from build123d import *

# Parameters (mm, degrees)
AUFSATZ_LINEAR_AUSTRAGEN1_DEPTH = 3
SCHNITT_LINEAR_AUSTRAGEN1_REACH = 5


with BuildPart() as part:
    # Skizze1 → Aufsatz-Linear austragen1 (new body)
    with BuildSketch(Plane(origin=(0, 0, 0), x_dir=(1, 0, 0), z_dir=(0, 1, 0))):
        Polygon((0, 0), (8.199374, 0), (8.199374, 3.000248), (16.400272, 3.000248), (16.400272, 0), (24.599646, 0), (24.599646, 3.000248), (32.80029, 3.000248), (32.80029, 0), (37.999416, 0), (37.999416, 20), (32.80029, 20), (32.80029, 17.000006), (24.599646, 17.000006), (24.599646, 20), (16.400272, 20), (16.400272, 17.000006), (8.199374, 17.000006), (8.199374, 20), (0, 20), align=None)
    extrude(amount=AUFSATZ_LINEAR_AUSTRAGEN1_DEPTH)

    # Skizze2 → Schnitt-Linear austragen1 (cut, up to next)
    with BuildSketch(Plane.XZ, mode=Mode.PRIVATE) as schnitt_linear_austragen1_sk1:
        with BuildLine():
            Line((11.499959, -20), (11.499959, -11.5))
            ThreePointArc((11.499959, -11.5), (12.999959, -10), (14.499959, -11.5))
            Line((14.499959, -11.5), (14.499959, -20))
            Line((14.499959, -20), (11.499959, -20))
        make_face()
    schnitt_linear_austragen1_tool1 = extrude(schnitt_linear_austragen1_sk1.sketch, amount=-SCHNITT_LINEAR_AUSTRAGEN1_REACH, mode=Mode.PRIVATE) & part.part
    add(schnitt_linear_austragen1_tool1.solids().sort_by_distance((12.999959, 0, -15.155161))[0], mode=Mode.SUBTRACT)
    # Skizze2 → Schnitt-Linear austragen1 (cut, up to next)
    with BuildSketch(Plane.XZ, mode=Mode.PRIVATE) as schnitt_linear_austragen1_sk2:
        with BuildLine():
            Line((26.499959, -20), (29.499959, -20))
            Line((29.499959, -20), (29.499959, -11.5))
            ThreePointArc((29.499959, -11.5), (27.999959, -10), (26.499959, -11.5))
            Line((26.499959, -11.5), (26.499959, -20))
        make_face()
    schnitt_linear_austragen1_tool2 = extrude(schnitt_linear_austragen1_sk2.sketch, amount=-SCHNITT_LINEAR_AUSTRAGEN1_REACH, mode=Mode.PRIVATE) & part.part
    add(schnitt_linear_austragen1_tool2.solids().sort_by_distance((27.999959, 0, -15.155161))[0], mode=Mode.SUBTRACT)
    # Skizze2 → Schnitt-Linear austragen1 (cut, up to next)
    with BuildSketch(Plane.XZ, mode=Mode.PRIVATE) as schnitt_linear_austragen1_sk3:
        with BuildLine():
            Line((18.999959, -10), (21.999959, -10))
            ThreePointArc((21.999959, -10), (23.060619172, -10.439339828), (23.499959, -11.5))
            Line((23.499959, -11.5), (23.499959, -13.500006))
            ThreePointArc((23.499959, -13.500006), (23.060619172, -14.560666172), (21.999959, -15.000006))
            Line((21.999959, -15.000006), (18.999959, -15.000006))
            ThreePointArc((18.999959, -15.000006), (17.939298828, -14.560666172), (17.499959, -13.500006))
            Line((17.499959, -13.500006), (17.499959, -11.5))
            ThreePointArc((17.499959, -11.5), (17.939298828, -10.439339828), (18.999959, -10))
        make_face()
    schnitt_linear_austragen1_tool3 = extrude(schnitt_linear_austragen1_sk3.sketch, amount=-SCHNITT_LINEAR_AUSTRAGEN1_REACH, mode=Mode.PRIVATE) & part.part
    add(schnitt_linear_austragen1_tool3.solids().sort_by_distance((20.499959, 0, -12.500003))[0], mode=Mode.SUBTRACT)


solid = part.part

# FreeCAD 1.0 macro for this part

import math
import FreeCAD as App
import Part
import Sketcher
from FreeCAD import Vector


def add_polygon(sketch, points):
    """Adds a closed chain of lines whose ends are joined by coincident constraints."""
    first, n = sketch.GeometryCount, len(points)
    for a, b in zip(points, points[1:] + points[:1]):
        sketch.addGeometry(Part.LineSegment(App.Vector(*a, 0), App.Vector(*b, 0)), False)
    for i in range(n):
        sketch.addConstraint(Sketcher.Constraint("Coincident", first + i, 2, first + (i + 1) % n, 1))

doc = App.newDocument("Part")
body = doc.addObject("PartDesign::Body", "Body")

# Sketch on XZ plane
sketch1 = body.newObject("Sketcher::SketchObject", "Sketch")
sketch1.AttachmentSupport = (doc.getObject("XZ_Plane"), [""])
sketch1.MapMode = "FlatFace"
add_polygon(sketch1, [(0, 0), (8.2, 0), (8.2, -3), (16.4, -3), (16.4, 0), (24.6, 0), (24.6, -3), (32.8, -3), (32.8, 0), (38, 0), (38, -20), (32.8, -20), (32.8, -17), (24.6, -17), (24.6, -20), (16.4, -20), (16.4, -17), (8.2, -17), (8.2, -20), (0, -20)])  # lines 0-19
sketch1.addConstraint([
    Sketcher.Constraint("Horizontal", 0),
    Sketcher.Constraint("Vertical", 1),
    Sketcher.Constraint("Horizontal", 2),
    Sketcher.Constraint("Vertical", 3),
    Sketcher.Constraint("Horizontal", 4),
    Sketcher.Constraint("Vertical", 5),
    Sketcher.Constraint("Horizontal", 6),
    Sketcher.Constraint("Vertical", 7),
    Sketcher.Constraint("Horizontal", 8),
    Sketcher.Constraint("Vertical", 9),
    Sketcher.Constraint("Horizontal", 10),
    Sketcher.Constraint("Vertical", 11),
    Sketcher.Constraint("Horizontal", 12),
    Sketcher.Constraint("Vertical", 13),
    Sketcher.Constraint("Horizontal", 14),
    Sketcher.Constraint("Vertical", 15),
    Sketcher.Constraint("Horizontal", 16),
    Sketcher.Constraint("Vertical", 17),
    Sketcher.Constraint("Horizontal", 18),
    Sketcher.Constraint("Vertical", 19),
    Sketcher.Constraint("Coincident", 19, 2, -1, 1),
    Sketcher.Constraint("PointOnObject", 3, 2, -1),
    Sketcher.Constraint("PointOnObject", 7, 2, -1),
    Sketcher.Constraint("Horizontal", 2, 2, 5, 2),
    Sketcher.Constraint("Horizontal", 10, 2, 13, 2),
    Sketcher.Constraint("Horizontal", 12, 2, 15, 2),
    Sketcher.Constraint("Horizontal", 14, 2, 17, 2),
    Sketcher.Constraint("Vertical", 7, 2, 10, 2),
    Sketcher.Constraint("Vertical", 5, 2, 12, 2),
    Sketcher.Constraint("Vertical", 3, 2, 14, 2),
    Sketcher.Constraint("Vertical", 1, 2, 16, 2),
    Sketcher.Constraint("Equal", 0, 4),
    Sketcher.Constraint("DistanceY", 9, 2, 9, 1, 20.0),
    Sketcher.Constraint("DistanceY", 1, 2, 1, 1, 3.000248),
    Sketcher.Constraint("DistanceX", 0, 1, 0, 2, 8.199374),
    Sketcher.Constraint("DistanceX", 2, 1, 2, 2, 8.200898),
    Sketcher.Constraint("DistanceX", 6, 1, 6, 2, 8.200644),
    Sketcher.Constraint("DistanceX", 8, 1, 8, 2, 5.199126),
    Sketcher.Constraint("DistanceY", 11, 1, 11, 2, 2.999994),
])
pad1 = body.newObject("PartDesign::Pad", "Pad")
pad1.Profile = sketch1
pad1.Length = 3
pad1.Reversed = True

# Sketch on XZ plane
sketch2 = body.newObject("Sketcher::SketchObject", "Sketch001")
sketch2.AttachmentSupport = (doc.getObject("XZ_Plane"), [""])
sketch2.MapMode = "FlatFace"
sketch2.addGeometry([
    Part.LineSegment(Vector(11.499959, -11.5, 0), Vector(11.499959, -20, 0)),
    Part.LineSegment(Vector(11.499959, -20, 0), Vector(14.499959, -20, 0)),
    Part.LineSegment(Vector(14.499959, -20, 0), Vector(14.499959, -11.5, 0)),
    Part.ArcOfCircle(Part.Circle(Vector(12.999959, -11.5, 0), Vector(0, 0, 1), 1.5), math.radians(0), math.radians(180)),
], False)
sketch2.addConstraint([
    Sketcher.Constraint("Coincident", 0, 2, 1, 1),
    Sketcher.Constraint("Coincident", 1, 2, 2, 1),
    Sketcher.Constraint("Tangent", 2, 2, 3, 1),
    Sketcher.Constraint("Tangent", 3, 2, 0, 1),
    Sketcher.Constraint("Vertical", 0),
    Sketcher.Constraint("Horizontal", 1),
    Sketcher.Constraint("Vertical", 2),
    Sketcher.Constraint("Radius", 3, 1.5),
    Sketcher.Constraint("DistanceY", 0, 2, 0, 1, 8.5),
    Sketcher.Constraint("DistanceY", 0, 2, -1, 1, 20.0),
    Sketcher.Constraint("DistanceX", -1, 1, 3, 3, 12.999959),
])
pocket1 = body.newObject("PartDesign::Pocket", "Pocket")
pocket1.Profile = sketch2
pocket1.Type = "UpToFirst"

# Sketch on XZ plane
sketch3 = body.newObject("Sketcher::SketchObject", "Sketch002")
sketch3.AttachmentSupport = (doc.getObject("XZ_Plane"), [""])
sketch3.MapMode = "FlatFace"
sketch3.addGeometry([
    Part.LineSegment(Vector(26.499959, -20, 0), Vector(29.499959, -20, 0)),
    Part.LineSegment(Vector(29.499959, -20, 0), Vector(29.499959, -11.5, 0)),
    Part.ArcOfCircle(Part.Circle(Vector(27.999959, -11.5, 0), Vector(0, 0, 1), 1.5), math.radians(0), math.radians(180)),
    Part.LineSegment(Vector(26.499959, -11.5, 0), Vector(26.499959, -20, 0)),
], False)
sketch3.addConstraint([
    Sketcher.Constraint("Coincident", 0, 2, 1, 1),
    Sketcher.Constraint("Tangent", 1, 2, 2, 1),
    Sketcher.Constraint("Tangent", 2, 2, 3, 1),
    Sketcher.Constraint("Coincident", 3, 2, 0, 1),
    Sketcher.Constraint("Horizontal", 0),
    Sketcher.Constraint("Vertical", 1),
    Sketcher.Constraint("Vertical", 3),
    Sketcher.Constraint("Radius", 2, 1.5),
    Sketcher.Constraint("DistanceY", 1, 1, 1, 2, 8.5),
    Sketcher.Constraint("DistanceY", 0, 2, -1, 1, 20.0),
    Sketcher.Constraint("DistanceX", -1, 1, 2, 3, 27.999959),
])
pocket2 = body.newObject("PartDesign::Pocket", "Pocket001")
pocket2.Profile = sketch3
pocket2.Type = "UpToFirst"

# Sketch on XZ plane
sketch4 = body.newObject("Sketcher::SketchObject", "Sketch003")
sketch4.AttachmentSupport = (doc.getObject("XZ_Plane"), [""])
sketch4.MapMode = "FlatFace"
sketch4.addGeometry([
    Part.LineSegment(Vector(22, -10, 0), Vector(19, -10, 0)),  # 0
    Part.ArcOfCircle(Part.Circle(Vector(19, -11.5, 0), Vector(0, 0, 1), 1.5), math.radians(90), math.radians(180)),  # 1
    Part.LineSegment(Vector(17.5, -11.5, 0), Vector(17.5, -13.5, 0)),  # 2
    Part.ArcOfCircle(Part.Circle(Vector(19, -13.5, 0), Vector(0, 0, 1), 1.5), math.radians(180), math.radians(270)),  # 3
    Part.LineSegment(Vector(19, -15, 0), Vector(22, -15, 0)),  # 4
    Part.ArcOfCircle(Part.Circle(Vector(22, -13.5, 0), Vector(0, 0, 1), 1.5), math.radians(-90), math.radians(0)),  # 5
    Part.LineSegment(Vector(23.5, -13.5, 0), Vector(23.5, -11.5, 0)),  # 6
    Part.ArcOfCircle(Part.Circle(Vector(22, -11.5, 0), Vector(0, 0, 1), 1.5), math.radians(0), math.radians(90)),  # 7
], False)
sketch4.addConstraint([
    Sketcher.Constraint("Tangent", 0, 2, 1, 1),
    Sketcher.Constraint("Tangent", 1, 2, 2, 1),
    Sketcher.Constraint("Tangent", 2, 2, 3, 1),
    Sketcher.Constraint("Tangent", 3, 2, 4, 1),
    Sketcher.Constraint("Tangent", 4, 2, 5, 1),
    Sketcher.Constraint("Tangent", 5, 2, 6, 1),
    Sketcher.Constraint("Tangent", 6, 2, 7, 1),
    Sketcher.Constraint("Tangent", 7, 2, 0, 1),
    Sketcher.Constraint("Horizontal", 0),
    Sketcher.Constraint("Vertical", 2),
    Sketcher.Constraint("Horizontal", 4),
    Sketcher.Constraint("Vertical", 6),
    Sketcher.Constraint("Equal", 1, 3),
    Sketcher.Constraint("Equal", 3, 5),
    Sketcher.Constraint("Equal", 5, 7),
    Sketcher.Constraint("Radius", 1, 1.5),
    Sketcher.Constraint("DistanceX", 0, 2, 0, 1, 3.0),
    Sketcher.Constraint("DistanceY", 0, 2, -1, 1, 10.0),
    Sketcher.Constraint("DistanceY", 2, 2, 2, 1, 2.000006),
    Sketcher.Constraint("DistanceX", -1, 1, 1, 3, 18.999959),
])
pocket3 = body.newObject("PartDesign::Pocket", "Pocket002")
pocket3.Profile = sketch4
pocket3.Type = "UpToFirst"

doc.recompute()
